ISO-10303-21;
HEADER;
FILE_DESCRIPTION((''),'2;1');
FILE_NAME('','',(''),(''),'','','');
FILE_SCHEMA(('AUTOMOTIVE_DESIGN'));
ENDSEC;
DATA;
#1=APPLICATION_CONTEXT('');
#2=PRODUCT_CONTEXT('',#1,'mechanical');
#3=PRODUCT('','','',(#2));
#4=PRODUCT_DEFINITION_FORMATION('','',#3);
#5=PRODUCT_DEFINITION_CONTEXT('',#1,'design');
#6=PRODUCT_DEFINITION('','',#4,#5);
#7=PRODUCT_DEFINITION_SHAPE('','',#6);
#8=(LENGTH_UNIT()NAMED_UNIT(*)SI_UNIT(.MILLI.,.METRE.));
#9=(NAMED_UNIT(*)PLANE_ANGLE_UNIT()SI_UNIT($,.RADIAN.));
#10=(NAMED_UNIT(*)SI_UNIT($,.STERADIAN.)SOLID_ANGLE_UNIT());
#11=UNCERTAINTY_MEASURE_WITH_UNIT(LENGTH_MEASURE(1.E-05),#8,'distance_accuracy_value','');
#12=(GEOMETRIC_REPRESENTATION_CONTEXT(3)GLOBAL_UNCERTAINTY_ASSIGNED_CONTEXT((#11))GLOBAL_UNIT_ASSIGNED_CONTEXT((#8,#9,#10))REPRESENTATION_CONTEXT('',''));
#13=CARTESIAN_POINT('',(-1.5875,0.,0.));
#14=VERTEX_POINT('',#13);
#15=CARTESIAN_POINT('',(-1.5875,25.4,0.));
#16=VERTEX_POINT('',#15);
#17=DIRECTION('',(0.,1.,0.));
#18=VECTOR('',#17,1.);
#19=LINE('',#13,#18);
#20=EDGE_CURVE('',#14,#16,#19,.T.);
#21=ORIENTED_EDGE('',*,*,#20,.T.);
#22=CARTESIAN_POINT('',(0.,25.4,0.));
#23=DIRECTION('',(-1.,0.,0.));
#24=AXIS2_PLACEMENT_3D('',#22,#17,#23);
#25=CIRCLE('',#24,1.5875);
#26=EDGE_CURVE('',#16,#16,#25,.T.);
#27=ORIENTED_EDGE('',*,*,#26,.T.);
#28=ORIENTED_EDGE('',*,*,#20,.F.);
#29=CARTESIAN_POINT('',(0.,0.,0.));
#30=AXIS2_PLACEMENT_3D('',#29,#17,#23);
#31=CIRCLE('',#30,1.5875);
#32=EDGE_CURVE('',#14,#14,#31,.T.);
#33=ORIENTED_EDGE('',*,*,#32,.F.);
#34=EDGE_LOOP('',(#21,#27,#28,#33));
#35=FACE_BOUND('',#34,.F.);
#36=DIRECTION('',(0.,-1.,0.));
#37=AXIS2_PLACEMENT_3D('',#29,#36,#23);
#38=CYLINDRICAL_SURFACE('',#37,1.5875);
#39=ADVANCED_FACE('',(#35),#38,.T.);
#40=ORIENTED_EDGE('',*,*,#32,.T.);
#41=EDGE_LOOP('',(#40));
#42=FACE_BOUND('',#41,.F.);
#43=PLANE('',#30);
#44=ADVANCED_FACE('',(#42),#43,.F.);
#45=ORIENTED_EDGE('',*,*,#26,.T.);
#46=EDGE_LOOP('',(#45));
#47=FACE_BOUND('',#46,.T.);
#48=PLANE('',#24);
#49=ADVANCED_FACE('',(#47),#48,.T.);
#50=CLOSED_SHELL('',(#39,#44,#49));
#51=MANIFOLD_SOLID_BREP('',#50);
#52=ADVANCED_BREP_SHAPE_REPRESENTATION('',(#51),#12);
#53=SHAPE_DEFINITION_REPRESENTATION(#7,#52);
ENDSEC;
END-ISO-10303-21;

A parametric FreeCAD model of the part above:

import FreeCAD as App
import Part
import Sketcher
Q = App.Units.Quantity

doc = App.newDocument("Part")
params = doc.addObject("Spreadsheet::Sheet", "Params")
for row, (alias, value) in enumerate([
    ("sketch1_diameter", "0.125 in"),
    ("pad1_length", "1 in"),
], start=1):
    params.set(f"A{row}", alias)
    params.set(f"B{row}", "=" + value)
    params.setAlias(f"B{row}", alias)

body = doc.addObject("PartDesign::Body", "Body")

# Sketch on XZ plane
sketch1 = body.newObject("Sketcher::SketchObject", "Sketch")
sketch1.AttachmentSupport = (doc.getObject("XZ_Plane"), [""])
sketch1.MapMode = "FlatFace"
sketch1.addGeometry(Part.Circle(App.Vector(0, 0, 0), App.Vector(0, 0, 1), 1.6), False)
sketch1.addConstraint([
    Sketcher.Constraint("Coincident", 0, 3, -1, 1),
    Sketcher.Constraint("Diameter", 0, Q("0.125 in")),
])
sketch1.setExpression("Constraints[1]", "Params.sketch1_diameter")
pad1 = body.newObject("PartDesign::Pad", "Pad")
pad1.Profile = sketch1
pad1.setExpression("Length", "Params.pad1_length")
pad1.Reversed = True

doc.recompute()
